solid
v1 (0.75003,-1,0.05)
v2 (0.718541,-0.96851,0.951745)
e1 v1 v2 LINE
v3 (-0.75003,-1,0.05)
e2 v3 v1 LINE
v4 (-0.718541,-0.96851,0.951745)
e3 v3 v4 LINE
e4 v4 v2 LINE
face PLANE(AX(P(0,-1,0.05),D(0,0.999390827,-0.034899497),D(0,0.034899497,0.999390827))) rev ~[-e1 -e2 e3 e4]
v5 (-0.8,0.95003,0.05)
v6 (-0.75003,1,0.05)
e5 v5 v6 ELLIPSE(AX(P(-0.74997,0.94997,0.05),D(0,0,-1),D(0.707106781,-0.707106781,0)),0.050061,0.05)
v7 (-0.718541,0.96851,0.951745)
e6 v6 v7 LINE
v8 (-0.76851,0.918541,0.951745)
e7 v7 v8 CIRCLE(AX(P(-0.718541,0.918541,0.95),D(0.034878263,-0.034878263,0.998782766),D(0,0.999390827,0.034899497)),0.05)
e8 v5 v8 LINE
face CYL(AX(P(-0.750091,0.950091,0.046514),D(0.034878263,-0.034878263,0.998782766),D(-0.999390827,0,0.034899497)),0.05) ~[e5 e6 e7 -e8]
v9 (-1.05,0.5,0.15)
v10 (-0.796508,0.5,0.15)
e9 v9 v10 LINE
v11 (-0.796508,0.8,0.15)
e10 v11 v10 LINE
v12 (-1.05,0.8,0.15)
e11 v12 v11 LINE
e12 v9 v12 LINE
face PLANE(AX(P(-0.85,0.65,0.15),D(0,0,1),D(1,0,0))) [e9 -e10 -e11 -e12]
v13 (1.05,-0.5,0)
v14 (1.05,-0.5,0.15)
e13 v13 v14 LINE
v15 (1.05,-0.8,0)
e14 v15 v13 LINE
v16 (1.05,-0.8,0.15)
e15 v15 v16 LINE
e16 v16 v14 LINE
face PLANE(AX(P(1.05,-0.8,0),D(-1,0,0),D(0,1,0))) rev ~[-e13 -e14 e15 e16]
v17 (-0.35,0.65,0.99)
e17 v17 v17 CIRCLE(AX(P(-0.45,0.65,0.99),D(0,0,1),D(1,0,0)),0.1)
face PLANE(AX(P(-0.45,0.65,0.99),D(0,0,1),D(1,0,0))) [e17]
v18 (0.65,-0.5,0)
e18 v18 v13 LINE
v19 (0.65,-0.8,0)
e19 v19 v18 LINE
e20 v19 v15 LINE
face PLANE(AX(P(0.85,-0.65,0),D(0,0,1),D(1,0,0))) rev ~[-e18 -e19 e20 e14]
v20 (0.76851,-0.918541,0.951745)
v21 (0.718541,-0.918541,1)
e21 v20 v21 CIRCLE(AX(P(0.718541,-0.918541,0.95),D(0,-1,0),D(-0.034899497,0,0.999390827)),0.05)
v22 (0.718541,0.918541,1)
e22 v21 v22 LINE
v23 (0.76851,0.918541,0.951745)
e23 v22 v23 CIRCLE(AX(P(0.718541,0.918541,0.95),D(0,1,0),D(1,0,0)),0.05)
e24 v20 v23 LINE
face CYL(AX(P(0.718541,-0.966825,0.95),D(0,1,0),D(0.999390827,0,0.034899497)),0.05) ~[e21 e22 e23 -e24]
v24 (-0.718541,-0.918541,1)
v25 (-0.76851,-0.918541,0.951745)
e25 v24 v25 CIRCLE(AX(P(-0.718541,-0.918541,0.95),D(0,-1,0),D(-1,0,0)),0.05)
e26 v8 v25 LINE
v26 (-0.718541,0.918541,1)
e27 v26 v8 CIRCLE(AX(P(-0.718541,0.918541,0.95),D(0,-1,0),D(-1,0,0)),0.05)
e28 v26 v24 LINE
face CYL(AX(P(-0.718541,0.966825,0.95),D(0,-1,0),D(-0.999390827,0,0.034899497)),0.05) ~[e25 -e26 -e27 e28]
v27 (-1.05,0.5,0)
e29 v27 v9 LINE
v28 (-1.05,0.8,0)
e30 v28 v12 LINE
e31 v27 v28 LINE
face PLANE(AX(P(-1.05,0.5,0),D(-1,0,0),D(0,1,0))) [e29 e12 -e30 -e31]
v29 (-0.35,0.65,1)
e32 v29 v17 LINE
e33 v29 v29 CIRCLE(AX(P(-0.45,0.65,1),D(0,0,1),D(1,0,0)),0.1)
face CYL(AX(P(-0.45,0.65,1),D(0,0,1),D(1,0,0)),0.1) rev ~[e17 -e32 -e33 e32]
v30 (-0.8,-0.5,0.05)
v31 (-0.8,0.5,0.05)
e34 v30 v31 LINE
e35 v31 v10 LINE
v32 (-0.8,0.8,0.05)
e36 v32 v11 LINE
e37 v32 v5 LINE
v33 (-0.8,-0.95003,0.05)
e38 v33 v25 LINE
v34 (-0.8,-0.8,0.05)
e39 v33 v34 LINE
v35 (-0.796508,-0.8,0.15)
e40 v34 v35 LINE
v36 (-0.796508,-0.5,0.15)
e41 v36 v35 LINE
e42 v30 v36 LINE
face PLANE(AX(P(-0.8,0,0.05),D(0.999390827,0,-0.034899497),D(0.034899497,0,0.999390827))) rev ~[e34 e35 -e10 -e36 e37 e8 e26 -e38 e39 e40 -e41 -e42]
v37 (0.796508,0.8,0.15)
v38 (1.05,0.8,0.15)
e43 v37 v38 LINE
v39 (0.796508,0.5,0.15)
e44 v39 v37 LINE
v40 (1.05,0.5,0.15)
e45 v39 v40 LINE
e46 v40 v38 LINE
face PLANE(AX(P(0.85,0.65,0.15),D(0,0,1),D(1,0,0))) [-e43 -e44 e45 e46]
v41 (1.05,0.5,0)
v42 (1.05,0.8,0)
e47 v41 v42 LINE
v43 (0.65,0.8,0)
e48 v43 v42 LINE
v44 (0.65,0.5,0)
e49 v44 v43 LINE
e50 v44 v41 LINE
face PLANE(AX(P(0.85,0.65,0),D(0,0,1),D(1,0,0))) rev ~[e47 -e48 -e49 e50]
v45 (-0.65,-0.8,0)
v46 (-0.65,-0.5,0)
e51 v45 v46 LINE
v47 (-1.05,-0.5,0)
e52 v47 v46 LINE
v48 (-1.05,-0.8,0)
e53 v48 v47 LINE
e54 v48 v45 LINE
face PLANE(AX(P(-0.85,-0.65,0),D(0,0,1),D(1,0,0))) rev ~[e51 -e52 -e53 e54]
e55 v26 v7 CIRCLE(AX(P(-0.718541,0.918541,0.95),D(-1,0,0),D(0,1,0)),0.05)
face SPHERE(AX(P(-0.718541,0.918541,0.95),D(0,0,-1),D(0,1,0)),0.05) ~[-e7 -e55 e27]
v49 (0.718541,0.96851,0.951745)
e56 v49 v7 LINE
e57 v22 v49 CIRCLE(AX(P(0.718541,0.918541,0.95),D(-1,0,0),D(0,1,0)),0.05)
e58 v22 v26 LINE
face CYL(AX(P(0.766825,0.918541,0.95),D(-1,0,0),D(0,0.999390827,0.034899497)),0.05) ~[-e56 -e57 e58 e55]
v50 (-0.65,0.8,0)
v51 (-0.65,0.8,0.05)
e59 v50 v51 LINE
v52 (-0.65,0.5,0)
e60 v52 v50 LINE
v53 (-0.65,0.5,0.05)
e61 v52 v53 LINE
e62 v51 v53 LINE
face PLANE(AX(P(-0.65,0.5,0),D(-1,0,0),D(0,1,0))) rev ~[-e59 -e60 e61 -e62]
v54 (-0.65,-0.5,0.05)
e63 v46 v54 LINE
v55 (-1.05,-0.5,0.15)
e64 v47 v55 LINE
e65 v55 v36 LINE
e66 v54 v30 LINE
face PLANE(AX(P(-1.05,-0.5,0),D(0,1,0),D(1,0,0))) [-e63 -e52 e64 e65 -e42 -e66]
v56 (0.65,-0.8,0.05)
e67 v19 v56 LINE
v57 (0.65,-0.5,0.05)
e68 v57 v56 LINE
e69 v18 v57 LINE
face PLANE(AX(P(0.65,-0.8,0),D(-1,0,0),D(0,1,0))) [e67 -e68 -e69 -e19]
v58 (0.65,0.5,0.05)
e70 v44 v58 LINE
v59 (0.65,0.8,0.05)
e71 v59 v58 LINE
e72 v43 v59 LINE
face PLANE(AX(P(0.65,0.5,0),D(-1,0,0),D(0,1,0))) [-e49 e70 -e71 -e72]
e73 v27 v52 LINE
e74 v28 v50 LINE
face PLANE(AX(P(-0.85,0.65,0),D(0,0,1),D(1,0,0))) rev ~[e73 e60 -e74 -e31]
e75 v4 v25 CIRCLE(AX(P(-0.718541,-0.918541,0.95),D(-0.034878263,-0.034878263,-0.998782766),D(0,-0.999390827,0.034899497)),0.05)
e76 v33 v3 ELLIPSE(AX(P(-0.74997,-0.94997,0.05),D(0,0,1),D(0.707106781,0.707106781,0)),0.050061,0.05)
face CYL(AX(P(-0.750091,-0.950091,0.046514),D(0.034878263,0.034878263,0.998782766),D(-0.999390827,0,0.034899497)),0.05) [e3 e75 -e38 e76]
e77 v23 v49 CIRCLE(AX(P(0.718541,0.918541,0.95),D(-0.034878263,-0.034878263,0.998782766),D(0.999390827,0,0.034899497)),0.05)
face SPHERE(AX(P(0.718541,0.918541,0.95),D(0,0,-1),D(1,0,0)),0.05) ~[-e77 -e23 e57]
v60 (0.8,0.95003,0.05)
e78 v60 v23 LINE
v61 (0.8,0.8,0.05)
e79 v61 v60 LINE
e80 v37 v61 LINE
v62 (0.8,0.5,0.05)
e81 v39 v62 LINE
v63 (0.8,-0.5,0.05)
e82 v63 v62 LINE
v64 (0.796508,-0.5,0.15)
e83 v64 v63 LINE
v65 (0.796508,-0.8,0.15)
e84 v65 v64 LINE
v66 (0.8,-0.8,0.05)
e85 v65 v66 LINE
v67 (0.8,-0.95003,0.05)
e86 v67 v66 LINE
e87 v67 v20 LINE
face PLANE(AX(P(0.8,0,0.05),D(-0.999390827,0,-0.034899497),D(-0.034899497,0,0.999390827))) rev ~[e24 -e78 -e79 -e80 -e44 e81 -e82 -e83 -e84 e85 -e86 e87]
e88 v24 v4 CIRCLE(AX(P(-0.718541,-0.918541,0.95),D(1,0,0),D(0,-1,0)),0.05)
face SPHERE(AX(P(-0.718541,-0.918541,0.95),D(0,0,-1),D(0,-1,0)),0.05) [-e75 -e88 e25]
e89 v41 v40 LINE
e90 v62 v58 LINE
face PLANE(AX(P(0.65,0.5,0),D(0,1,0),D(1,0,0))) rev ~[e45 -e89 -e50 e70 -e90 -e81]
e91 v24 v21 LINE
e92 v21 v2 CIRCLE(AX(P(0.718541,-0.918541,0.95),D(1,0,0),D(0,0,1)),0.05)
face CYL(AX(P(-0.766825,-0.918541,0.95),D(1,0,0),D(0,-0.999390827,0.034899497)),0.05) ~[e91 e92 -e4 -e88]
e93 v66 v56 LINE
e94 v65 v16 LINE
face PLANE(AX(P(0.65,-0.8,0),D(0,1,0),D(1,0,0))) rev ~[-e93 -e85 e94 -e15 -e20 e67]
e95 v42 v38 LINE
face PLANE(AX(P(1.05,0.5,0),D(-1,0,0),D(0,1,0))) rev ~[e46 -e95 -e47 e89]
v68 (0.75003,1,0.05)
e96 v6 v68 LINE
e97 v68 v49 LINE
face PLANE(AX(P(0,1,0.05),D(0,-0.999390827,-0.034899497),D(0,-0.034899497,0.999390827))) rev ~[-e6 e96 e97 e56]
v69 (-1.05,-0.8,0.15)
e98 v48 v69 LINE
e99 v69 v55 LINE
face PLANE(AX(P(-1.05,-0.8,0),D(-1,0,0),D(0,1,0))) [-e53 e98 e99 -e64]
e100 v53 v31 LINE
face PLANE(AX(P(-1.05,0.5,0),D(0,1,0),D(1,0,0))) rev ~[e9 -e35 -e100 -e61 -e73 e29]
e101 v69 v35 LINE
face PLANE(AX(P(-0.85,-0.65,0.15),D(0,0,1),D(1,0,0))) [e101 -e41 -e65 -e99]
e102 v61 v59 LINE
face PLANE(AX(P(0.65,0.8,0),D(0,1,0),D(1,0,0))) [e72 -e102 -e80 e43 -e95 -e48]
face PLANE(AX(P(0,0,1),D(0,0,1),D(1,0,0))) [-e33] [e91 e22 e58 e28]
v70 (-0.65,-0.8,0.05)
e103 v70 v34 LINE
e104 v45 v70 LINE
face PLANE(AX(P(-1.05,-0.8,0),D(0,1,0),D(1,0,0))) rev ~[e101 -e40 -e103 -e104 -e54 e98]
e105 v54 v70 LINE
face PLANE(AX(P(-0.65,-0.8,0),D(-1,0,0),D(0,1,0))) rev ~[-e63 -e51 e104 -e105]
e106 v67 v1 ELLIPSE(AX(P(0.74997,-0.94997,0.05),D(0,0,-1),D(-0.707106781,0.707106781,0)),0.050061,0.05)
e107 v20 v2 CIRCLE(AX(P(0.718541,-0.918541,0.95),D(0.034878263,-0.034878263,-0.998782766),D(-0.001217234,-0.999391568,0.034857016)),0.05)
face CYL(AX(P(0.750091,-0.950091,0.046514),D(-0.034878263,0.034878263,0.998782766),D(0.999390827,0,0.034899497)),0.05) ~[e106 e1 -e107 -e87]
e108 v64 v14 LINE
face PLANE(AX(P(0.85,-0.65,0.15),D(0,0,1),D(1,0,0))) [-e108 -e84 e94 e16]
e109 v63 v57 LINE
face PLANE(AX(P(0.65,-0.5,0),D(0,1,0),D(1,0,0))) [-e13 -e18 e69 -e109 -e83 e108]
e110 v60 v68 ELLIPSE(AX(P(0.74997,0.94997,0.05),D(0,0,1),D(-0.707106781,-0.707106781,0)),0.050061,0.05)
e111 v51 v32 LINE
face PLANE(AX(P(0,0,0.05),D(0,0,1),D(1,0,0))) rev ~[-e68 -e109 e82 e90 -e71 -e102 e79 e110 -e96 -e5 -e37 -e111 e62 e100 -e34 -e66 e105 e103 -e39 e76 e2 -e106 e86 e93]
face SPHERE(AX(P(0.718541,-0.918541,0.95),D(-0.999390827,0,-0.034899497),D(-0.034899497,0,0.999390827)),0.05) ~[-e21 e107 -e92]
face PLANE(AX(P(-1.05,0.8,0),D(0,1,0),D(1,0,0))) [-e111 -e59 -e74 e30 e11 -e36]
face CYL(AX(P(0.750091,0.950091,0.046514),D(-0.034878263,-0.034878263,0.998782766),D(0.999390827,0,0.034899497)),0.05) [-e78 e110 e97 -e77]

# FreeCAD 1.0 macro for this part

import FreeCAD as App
import Part
import Sketcher


def edges_at(feature, points):
    """Names of the edges that pass closest to the given points."""
    edges = feature.Shape.Edges
    near = lambda p: min(range(len(edges)), key=lambda i: edges[i].distToShape(Part.Vertex(*p))[0])
    return sorted({f"Edge{near(p) + 1}" for p in points})

doc = App.newDocument("Part")
params = doc.addObject("Spreadsheet::Sheet", "Params")
for row, (alias, value) in enumerate([
    ("sketch1_height", "2 mm"),
    ("sketch1_width", "1.6 mm"),
    ("pad1_length", "0.95 mm"),
    ("pad1_taper", "-2 deg"),
    ("sketch2_width", "0.4 mm"),
    ("sketch2_height", "0.3 mm"),
    ("pad2_length", "0.15 mm"),
    ("fillet_radius", "0.05 mm"),
    ("sketch3_diameter", "0.2 mm"),
    ("pocket1_length", "0.01 mm"),
], start=1):
    params.set(f"A{row}", alias)
    params.set(f"B{row}", "=" + value)
    params.setAlias(f"B{row}", alias)

body = doc.addObject("PartDesign::Body", "Body")

# Sketch on XY plane
sketch1 = body.newObject("Sketcher::SketchObject", "Sketch")
sketch1.AttachmentSupport = (doc.getObject("XY_Plane"), [""])
sketch1.MapMode = "FlatFace"
sketch1.AttachmentOffset = App.Placement(App.Vector(0, 0, 0.05), App.Rotation())
sketch1.addGeometry([
    Part.LineSegment(App.Vector(-0.8, 1, 0), App.Vector(-0.8, -1, 0)),
    Part.LineSegment(App.Vector(-0.8, -1, 0), App.Vector(0.8, -1, 0)),
    Part.LineSegment(App.Vector(0.8, -1, 0), App.Vector(0.8, 1, 0)),
    Part.LineSegment(App.Vector(0.8, 1, 0), App.Vector(-0.8, 1, 0)),
], False)
sketch1.addConstraint([
    Sketcher.Constraint("Coincident", 0, 2, 1, 1),
    Sketcher.Constraint("Coincident", 1, 2, 2, 1),
    Sketcher.Constraint("Coincident", 2, 2, 3, 1),
    Sketcher.Constraint("Coincident", 3, 2, 0, 1),
    Sketcher.Constraint("Vertical", 0),
    Sketcher.Constraint("Horizontal", 1),
    Sketcher.Constraint("Vertical", 2),
    Sketcher.Constraint("Horizontal", 3),
    Sketcher.Constraint("Symmetric", 0, 2, 2, 2, -1, 1),
    Sketcher.Constraint("DistanceY", 0, 2, 0, 1, 2.0),
    Sketcher.Constraint("DistanceX", 1, 1, 1, 2, 1.6),
])
sketch1.setExpression("Constraints[9]", "Params.sketch1_height")
sketch1.setExpression("Constraints[10]", "Params.sketch1_width")
pad1 = body.newObject("PartDesign::Pad", "Pad")
pad1.Profile = sketch1
pad1.setExpression("Length", "Params.pad1_length")
pad1.setExpression("TaperAngle", "Params.pad1_taper")

# Sketch on XY plane
sketch2 = body.newObject("Sketcher::SketchObject", "Sketch001")
sketch2.AttachmentSupport = (doc.getObject("XY_Plane"), [""])
sketch2.MapMode = "FlatFace"
sketch2.addGeometry([
    Part.LineSegment(App.Vector(0.65, 0.8, 0), App.Vector(0.65, 0.5, 0)),  # 0
    Part.LineSegment(App.Vector(0.65, 0.5, 0), App.Vector(1.05, 0.5, 0)),  # 1
    Part.LineSegment(App.Vector(1.05, 0.5, 0), App.Vector(1.05, 0.8, 0)),  # 2
    Part.LineSegment(App.Vector(1.05, 0.8, 0), App.Vector(0.65, 0.8, 0)),  # 3
    Part.LineSegment(App.Vector(0.65, -0.5, 0), App.Vector(0.65, -0.8, 0)),  # 4
    Part.LineSegment(App.Vector(0.65, -0.8, 0), App.Vector(1.05, -0.8, 0)),  # 5
    Part.LineSegment(App.Vector(1.05, -0.8, 0), App.Vector(1.05, -0.5, 0)),  # 6
    Part.LineSegment(App.Vector(1.05, -0.5, 0), App.Vector(0.65, -0.5, 0)),  # 7
    Part.LineSegment(App.Vector(-1.05, 0.8, 0), App.Vector(-1.05, 0.5, 0)),  # 8
    Part.LineSegment(App.Vector(-1.05, 0.5, 0), App.Vector(-0.65, 0.5, 0)),  # 9
    Part.LineSegment(App.Vector(-0.65, 0.5, 0), App.Vector(-0.65, 0.8, 0)),  # 10
    Part.LineSegment(App.Vector(-0.65, 0.8, 0), App.Vector(-1.05, 0.8, 0)),  # 11
    Part.LineSegment(App.Vector(-1.05, -0.5, 0), App.Vector(-1.05, -0.8, 0)),  # 12
    Part.LineSegment(App.Vector(-1.05, -0.8, 0), App.Vector(-0.65, -0.8, 0)),  # 13
    Part.LineSegment(App.Vector(-0.65, -0.8, 0), App.Vector(-0.65, -0.5, 0)),  # 14
    Part.LineSegment(App.Vector(-0.65, -0.5, 0), App.Vector(-1.05, -0.5, 0)),  # 15
], False)
sketch2.addConstraint([
    Sketcher.Constraint("Coincident", 0, 2, 1, 1),
    Sketcher.Constraint("Coincident", 1, 2, 2, 1),
    Sketcher.Constraint("Coincident", 2, 2, 3, 1),
    Sketcher.Constraint("Coincident", 3, 2, 0, 1),
    Sketcher.Constraint("Coincident", 4, 2, 5, 1),
    Sketcher.Constraint("Coincident", 5, 2, 6, 1),
    Sketcher.Constraint("Coincident", 6, 2, 7, 1),
    Sketcher.Constraint("Coincident", 7, 2, 4, 1),
    Sketcher.Constraint("Coincident", 8, 2, 9, 1),
    Sketcher.Constraint("Coincident", 9, 2, 10, 1),
    Sketcher.Constraint("Coincident", 10, 2, 11, 1),
    Sketcher.Constraint("Coincident", 11, 2, 8, 1),
    Sketcher.Constraint("Coincident", 12, 2, 13, 1),
    Sketcher.Constraint("Coincident", 13, 2, 14, 1),
    Sketcher.Constraint("Coincident", 14, 2, 15, 1),
    Sketcher.Constraint("Coincident", 15, 2, 12, 1),
    Sketcher.Constraint("Vertical", 0),
    Sketcher.Constraint("Horizontal", 1),
    Sketcher.Constraint("Vertical", 2),
    Sketcher.Constraint("Horizontal", 3),
    Sketcher.Constraint("Vertical", 4),
    Sketcher.Constraint("Horizontal", 5),
    Sketcher.Constraint("Vertical", 6),
    Sketcher.Constraint("Horizontal", 7),
    Sketcher.Constraint("Vertical", 8),
    Sketcher.Constraint("Horizontal", 9),
    Sketcher.Constraint("Vertical", 10),
    Sketcher.Constraint("Horizontal", 11),
    Sketcher.Constraint("Vertical", 12),
    Sketcher.Constraint("Horizontal", 13),
    Sketcher.Constraint("Vertical", 14),
    Sketcher.Constraint("Horizontal", 15),
    Sketcher.Constraint("Symmetric", 6, 2, 8, 2, -1, 1),
    Sketcher.Constraint("Symmetric", 4, 2, 10, 2, -1, 1),
    Sketcher.Constraint("Symmetric", 2, 2, 12, 2, -1, 1),
    Sketcher.Constraint("Symmetric", 0, 2, 14, 2, -1, 1),
    Sketcher.Constraint("Symmetric", 1, 2, 8, 2, -2),
    Sketcher.Constraint("Symmetric", 3, 2, 10, 2, -2),
    Sketcher.Constraint("DistanceX", 1, 1, 1, 2, 0.4),
    Sketcher.Constraint("DistanceY", 0, 2, 0, 1, 0.3),
    Sketcher.Constraint("DistanceY", 6, 2, 1, 2, 1.0),
    Sketcher.Constraint("DistanceX", 8, 2, 0, 2, 1.7),
])
sketch2.setExpression("Constraints[38]", "Params.sketch2_width")
sketch2.setExpression("Constraints[39]", "Params.sketch2_height")
pad2 = body.newObject("PartDesign::Pad", "Pad001")
pad2.Profile = sketch2
pad2.setExpression("Length", "Params.pad2_length")
doc.recompute()

fillet = body.newObject("PartDesign::Fillet", "Fillet")
fillet.Base = (pad2, edges_at(pad2, [
    (0.783, 0.983, 0.525),
    (-0.783, 0.983, 0.525),
    (-0.783, -0.983, 0.525),
    (0, -0.967, 1),
    (0.767, 0, 1),
    (0, 0.967, 1),
    (-0.767, 0, 1),
    (0.783, -0.983, 0.525),
]))
fillet.setExpression("Radius", "Params.fillet_radius")

# Sketch on XY plane
sketch3 = body.newObject("Sketcher::SketchObject", "Sketch002")
sketch3.AttachmentSupport = (doc.getObject("XY_Plane"), [""])
sketch3.MapMode = "FlatFace"
sketch3.AttachmentOffset = App.Placement(App.Vector(0, 0, 1), App.Rotation())
sketch3.addGeometry(Part.Circle(App.Vector(-0.45, 0.65, 0), App.Vector(0, 0, 1), 0.1), False)
sketch3.addConstraint([
    Sketcher.Constraint("Diameter", 0, 0.2),
    Sketcher.Constraint("DistanceX", 0, 3, -1, 1, 0.45),
    Sketcher.Constraint("DistanceY", -1, 1, 0, 3, 0.65),
])
sketch3.setExpression("Constraints[0]", "Params.sketch3_diameter")
pocket1 = body.newObject("PartDesign::Pocket", "Pocket")
pocket1.Profile = sketch3
pocket1.setExpression("Length", "Params.pocket1_length")

doc.recompute()
